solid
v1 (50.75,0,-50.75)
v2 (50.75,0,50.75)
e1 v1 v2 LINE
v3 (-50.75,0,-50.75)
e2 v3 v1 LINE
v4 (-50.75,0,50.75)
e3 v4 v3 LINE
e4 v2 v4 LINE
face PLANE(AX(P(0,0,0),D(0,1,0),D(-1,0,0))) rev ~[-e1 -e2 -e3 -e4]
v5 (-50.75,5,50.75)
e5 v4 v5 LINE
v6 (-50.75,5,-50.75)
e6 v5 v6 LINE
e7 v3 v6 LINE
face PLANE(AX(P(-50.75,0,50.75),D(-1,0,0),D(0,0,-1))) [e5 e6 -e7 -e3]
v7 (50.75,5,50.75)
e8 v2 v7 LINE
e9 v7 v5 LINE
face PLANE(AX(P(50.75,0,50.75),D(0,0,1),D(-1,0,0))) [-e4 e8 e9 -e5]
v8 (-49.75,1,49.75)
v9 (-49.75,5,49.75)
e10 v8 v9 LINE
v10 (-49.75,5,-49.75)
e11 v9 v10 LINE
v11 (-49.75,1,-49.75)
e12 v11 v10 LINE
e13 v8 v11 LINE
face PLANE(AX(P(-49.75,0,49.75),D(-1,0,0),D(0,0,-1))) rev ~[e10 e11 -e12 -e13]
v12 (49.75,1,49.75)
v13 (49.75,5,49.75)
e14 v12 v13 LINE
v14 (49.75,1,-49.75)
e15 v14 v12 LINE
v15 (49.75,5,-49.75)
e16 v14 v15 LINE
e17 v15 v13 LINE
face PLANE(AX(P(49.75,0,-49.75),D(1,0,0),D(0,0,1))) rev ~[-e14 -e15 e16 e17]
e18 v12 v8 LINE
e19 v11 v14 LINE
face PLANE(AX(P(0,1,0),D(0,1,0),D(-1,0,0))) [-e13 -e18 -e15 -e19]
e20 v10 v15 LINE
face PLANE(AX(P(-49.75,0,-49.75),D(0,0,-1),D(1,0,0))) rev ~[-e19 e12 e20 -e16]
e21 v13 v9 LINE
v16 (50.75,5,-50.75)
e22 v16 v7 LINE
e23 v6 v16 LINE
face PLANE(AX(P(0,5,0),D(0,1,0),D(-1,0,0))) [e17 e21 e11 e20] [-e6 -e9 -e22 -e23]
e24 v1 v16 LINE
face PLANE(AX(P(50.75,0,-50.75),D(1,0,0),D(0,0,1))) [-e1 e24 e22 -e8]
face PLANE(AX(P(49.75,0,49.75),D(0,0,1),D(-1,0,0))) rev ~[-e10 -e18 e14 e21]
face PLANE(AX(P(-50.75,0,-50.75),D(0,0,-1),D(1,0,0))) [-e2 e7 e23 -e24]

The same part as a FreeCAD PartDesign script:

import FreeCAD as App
import Part
import Sketcher
from FreeCAD import Vector
Q = App.Units.Quantity

doc = App.newDocument("Part")
body = doc.addObject("PartDesign::Body", "Body")

sketch1 = body.newObject("Sketcher::SketchObject", "Sketch")
sketch1.AttachmentSupport = (doc.getObject("XZ_Plane"), [""])
sketch1.MapMode = "FlatFace"
sketch1.addGeometry([
    Part.LineSegment(Vector(49.75, -49.75, 0), Vector(-49.75, -49.75, 0)),
    Part.LineSegment(Vector(-49.75, -49.75, 0), Vector(-49.75, 49.75, 0)),
    Part.LineSegment(Vector(-49.75, 49.75, 0), Vector(49.75, 49.75, 0)),
    Part.LineSegment(Vector(49.75, 49.75, 0), Vector(49.75, -49.75, 0)),
], False)
sketch1.addConstraint([
    Sketcher.Constraint("Coincident", 0, 2, 1, 1),
    Sketcher.Constraint("Coincident", 1, 2, 2, 1),
    Sketcher.Constraint("Coincident", 2, 2, 3, 1),
    Sketcher.Constraint("Coincident", 3, 2, 0, 1),
    Sketcher.Constraint("Horizontal", 0),
    Sketcher.Constraint("Vertical", 1),
    Sketcher.Constraint("Horizontal", 2),
    Sketcher.Constraint("Vertical", 3),
    Sketcher.Constraint("Symmetric", 0, 2, 2, 2, -1, 1),
    Sketcher.Constraint("Equal", 2, 1),
    Sketcher.Constraint("DistanceX", 0, 2, 0, 1, Q("99.5 mm")),
])
pad1 = body.newObject("PartDesign::Pad", "Pad")
pad1.Profile = sketch1
pad1.Length = 1
pad1.Reversed = True

sketch2 = body.newObject("Sketcher::SketchObject", "Sketch001")
sketch2.AttachmentSupport = (doc.getObject("XZ_Plane"), [""])
sketch2.MapMode = "FlatFace"
sketch2.addGeometry([
    Part.LineSegment(Vector(50.75, -50.75, 0), Vector(-50.75, -50.75, 0)),
    Part.LineSegment(Vector(-50.75, -50.75, 0), Vector(-50.75, 50.75, 0)),
    Part.LineSegment(Vector(-50.75, 50.75, 0), Vector(50.75, 50.75, 0)),
    Part.LineSegment(Vector(50.75, 50.75, 0), Vector(50.75, -50.75, 0)),
    Part.LineSegment(Vector(-49.75, 49.75, 0), Vector(-49.75, -49.75, 0)),
    Part.LineSegment(Vector(-49.75, -49.75, 0), Vector(49.75, -49.75, 0)),
    Part.LineSegment(Vector(49.75, -49.75, 0), Vector(49.75, 49.75, 0)),
    Part.LineSegment(Vector(49.75, 49.75, 0), Vector(-49.75, 49.75, 0)),
], False)
sketch2.addConstraint([
    Sketcher.Constraint("Coincident", 0, 2, 1, 1),
    Sketcher.Constraint("Coincident", 1, 2, 2, 1),
    Sketcher.Constraint("Coincident", 2, 2, 3, 1),
    Sketcher.Constraint("Coincident", 3, 2, 0, 1),
    Sketcher.Constraint("Coincident", 4, 2, 5, 1),
    Sketcher.Constraint("Coincident", 5, 2, 6, 1),
    Sketcher.Constraint("Coincident", 6, 2, 7, 1),
    Sketcher.Constraint("Coincident", 7, 2, 4, 1),
    Sketcher.Constraint("Horizontal", 0),
    Sketcher.Constraint("Vertical", 1),
    Sketcher.Constraint("Horizontal", 2),
    Sketcher.Constraint("Vertical", 3),
    Sketcher.Constraint("Vertical", 4),
    Sketcher.Constraint("Horizontal", 5),
    Sketcher.Constraint("Vertical", 6),
    Sketcher.Constraint("Horizontal", 7),
    Sketcher.Constraint("Symmetric", 0, 2, 2, 2, -1, 1),
    Sketcher.Constraint("Symmetric", 4, 2, 6, 2, -1, 1),
    Sketcher.Constraint("Equal", 2, 1),
    Sketcher.Constraint("Equal", 7, 4),
    Sketcher.Constraint("DistanceX", 5, 1, 5, 2, Q("99.5 mm")),
    Sketcher.Constraint("DistanceX", 0, 2, 4, 2, Q("1 mm")),
])
pad2 = body.newObject("PartDesign::Pad", "Pad001")
pad2.Profile = sketch2
pad2.Length = 5
pad2.Reversed = True

doc.recompute()
